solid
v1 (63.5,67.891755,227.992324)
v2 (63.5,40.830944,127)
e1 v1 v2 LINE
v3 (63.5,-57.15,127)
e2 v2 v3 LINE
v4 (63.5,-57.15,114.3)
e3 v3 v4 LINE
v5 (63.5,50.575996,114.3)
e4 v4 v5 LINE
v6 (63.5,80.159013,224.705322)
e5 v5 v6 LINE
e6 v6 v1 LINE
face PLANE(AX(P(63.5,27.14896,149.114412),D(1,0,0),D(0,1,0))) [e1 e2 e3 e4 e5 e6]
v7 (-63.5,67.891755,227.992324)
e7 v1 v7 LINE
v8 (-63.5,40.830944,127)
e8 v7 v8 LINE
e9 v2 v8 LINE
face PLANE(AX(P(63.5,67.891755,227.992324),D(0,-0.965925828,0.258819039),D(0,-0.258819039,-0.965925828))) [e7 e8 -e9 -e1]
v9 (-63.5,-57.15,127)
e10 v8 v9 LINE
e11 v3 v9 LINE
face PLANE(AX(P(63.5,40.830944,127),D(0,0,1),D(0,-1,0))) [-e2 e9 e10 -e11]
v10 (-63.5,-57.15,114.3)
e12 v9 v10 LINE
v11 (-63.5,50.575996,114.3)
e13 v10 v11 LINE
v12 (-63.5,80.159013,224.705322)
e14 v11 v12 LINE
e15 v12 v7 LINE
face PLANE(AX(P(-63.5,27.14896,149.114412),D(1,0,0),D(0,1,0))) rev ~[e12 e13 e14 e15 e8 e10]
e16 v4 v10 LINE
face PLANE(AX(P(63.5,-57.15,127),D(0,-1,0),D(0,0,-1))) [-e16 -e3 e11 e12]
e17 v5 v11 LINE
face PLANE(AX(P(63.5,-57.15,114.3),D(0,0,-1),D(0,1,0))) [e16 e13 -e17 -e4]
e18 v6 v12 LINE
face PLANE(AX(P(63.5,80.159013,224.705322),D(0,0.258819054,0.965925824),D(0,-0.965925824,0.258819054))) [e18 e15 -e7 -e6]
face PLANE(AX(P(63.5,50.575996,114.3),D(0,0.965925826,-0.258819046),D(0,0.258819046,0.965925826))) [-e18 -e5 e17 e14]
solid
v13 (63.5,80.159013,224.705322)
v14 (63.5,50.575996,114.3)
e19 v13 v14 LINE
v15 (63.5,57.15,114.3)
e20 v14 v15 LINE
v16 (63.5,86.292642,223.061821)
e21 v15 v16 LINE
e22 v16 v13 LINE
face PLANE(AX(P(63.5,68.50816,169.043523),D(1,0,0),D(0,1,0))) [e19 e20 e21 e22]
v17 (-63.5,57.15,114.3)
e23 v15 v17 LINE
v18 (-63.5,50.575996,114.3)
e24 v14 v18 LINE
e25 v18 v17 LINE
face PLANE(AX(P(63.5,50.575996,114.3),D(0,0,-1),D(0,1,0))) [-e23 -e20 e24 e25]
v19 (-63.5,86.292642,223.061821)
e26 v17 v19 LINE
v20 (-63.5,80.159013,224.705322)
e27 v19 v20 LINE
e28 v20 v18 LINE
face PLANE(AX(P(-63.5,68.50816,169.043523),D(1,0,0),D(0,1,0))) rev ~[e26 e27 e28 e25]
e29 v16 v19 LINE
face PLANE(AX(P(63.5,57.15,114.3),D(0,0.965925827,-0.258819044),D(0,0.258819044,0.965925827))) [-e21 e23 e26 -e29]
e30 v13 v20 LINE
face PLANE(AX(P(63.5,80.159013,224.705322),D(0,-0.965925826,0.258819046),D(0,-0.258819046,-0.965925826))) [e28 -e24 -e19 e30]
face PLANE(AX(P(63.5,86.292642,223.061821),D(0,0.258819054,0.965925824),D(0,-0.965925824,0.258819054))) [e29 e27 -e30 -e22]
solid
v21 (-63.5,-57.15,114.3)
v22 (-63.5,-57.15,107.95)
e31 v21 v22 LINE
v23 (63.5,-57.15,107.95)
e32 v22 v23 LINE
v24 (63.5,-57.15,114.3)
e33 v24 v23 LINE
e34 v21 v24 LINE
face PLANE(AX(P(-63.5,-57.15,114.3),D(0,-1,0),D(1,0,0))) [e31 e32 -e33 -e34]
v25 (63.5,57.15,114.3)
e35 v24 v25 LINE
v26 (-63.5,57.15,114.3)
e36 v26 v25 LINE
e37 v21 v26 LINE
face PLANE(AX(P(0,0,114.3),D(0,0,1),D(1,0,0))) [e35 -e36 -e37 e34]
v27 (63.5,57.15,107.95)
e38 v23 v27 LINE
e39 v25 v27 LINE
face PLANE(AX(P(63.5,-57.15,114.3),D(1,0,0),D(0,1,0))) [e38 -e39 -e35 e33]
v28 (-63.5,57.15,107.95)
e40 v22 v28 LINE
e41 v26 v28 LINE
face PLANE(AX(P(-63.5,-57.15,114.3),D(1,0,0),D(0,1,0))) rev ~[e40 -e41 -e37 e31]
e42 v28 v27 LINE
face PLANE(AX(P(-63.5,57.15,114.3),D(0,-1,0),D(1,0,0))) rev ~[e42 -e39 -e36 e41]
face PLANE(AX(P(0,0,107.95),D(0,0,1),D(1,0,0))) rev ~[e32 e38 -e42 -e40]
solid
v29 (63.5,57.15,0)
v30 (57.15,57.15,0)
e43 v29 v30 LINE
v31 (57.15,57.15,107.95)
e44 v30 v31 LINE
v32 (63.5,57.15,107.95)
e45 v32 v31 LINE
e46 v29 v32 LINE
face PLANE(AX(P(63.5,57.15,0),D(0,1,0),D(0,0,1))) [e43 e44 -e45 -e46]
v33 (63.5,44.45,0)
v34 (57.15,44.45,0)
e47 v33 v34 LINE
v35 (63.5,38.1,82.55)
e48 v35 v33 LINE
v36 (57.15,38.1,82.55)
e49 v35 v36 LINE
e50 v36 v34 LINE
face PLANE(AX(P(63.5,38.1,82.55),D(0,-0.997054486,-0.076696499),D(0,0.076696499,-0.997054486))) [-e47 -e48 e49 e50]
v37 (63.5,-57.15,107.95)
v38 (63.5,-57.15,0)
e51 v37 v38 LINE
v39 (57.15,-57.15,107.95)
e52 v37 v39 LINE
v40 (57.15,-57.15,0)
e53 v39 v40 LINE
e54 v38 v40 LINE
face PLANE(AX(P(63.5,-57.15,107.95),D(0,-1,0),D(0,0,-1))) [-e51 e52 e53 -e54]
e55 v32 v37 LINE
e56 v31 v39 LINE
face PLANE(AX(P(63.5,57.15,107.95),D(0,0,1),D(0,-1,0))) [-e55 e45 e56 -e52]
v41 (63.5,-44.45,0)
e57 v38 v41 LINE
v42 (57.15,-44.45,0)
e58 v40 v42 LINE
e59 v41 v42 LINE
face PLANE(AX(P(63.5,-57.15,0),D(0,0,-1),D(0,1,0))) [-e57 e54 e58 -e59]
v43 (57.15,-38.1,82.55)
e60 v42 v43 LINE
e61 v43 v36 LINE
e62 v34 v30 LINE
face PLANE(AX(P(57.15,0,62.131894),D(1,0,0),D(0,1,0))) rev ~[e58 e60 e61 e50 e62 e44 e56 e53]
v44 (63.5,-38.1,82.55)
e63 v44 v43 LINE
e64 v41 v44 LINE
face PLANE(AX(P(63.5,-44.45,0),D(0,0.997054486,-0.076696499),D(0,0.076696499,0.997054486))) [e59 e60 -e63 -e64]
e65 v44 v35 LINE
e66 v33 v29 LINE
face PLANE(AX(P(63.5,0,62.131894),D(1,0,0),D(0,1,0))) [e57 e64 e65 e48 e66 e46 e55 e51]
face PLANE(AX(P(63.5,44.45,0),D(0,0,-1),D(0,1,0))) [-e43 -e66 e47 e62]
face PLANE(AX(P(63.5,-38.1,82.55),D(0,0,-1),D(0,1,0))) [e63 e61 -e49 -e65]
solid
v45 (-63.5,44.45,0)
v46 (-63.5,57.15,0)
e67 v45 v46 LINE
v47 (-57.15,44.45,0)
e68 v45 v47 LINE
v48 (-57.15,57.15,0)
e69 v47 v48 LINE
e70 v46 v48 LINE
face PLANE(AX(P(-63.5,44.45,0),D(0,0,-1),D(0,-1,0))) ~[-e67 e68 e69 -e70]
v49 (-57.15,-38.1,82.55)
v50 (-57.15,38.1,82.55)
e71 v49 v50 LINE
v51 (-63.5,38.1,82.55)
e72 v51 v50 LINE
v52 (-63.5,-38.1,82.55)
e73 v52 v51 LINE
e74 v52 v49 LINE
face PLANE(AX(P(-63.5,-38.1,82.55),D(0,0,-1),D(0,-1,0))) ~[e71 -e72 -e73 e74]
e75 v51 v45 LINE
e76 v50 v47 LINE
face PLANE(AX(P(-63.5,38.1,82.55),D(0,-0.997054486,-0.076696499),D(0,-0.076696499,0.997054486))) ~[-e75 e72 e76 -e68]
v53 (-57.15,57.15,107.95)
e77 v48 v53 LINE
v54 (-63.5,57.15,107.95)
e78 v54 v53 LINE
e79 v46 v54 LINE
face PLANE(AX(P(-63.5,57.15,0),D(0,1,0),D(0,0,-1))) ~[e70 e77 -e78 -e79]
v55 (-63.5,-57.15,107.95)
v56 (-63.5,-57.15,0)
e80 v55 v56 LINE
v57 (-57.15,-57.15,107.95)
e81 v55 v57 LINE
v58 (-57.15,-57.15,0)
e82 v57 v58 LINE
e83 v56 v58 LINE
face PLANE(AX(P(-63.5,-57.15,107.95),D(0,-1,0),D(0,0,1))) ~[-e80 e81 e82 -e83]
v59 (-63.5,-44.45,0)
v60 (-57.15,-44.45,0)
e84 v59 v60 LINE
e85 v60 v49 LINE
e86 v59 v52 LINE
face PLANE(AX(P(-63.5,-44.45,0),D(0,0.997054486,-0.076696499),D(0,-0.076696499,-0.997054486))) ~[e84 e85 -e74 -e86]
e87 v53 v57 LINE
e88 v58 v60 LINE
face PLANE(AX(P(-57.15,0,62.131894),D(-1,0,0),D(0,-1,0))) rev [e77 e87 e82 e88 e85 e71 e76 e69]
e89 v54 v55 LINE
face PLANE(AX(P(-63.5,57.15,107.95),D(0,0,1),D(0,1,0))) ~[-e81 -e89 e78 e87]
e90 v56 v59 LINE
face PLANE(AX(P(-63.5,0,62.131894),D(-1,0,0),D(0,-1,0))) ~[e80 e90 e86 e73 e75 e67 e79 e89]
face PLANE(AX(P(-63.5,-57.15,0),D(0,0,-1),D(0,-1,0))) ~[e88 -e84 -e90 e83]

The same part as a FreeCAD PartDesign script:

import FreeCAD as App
import Part
import Sketcher
Q = App.Units.Quantity

doc = App.newDocument("Part")
body = doc.addObject("PartDesign::Body", "Body")

# Sketch on XY plane
sketch1 = body.newObject("Sketcher::SketchObject", "Sketch")
sketch1.AttachmentSupport = (doc.getObject("XY_Plane"), [""])
sketch1.MapMode = "FlatFace"
sketch1.AttachmentOffset = App.Placement(App.Vector(0, 0, 4.5 * 25.4), App.Rotation())
sketch1.addGeometry(Part.LineSegment(App.Vector(-64, 57, 0), App.Vector(-64, -57, 0)), False)
sketch1.addGeometry(Part.LineSegment(App.Vector(-64, -57, 0), App.Vector(64, -57, 0)), False)
sketch1.addGeometry(Part.LineSegment(App.Vector(64, -57, 0), App.Vector(64, 57, 0)), False)
sketch1.addGeometry(Part.LineSegment(App.Vector(64, 57, 0), App.Vector(-64, 57, 0)), False)
sketch1.addConstraint(Sketcher.Constraint("Coincident", 0, 2, 1, 1))
sketch1.addConstraint(Sketcher.Constraint("Coincident", 1, 2, 2, 1))
sketch1.addConstraint(Sketcher.Constraint("Coincident", 2, 2, 3, 1))
sketch1.addConstraint(Sketcher.Constraint("Coincident", 3, 2, 0, 1))
sketch1.addConstraint(Sketcher.Constraint("Vertical", 0))
sketch1.addConstraint(Sketcher.Constraint("Horizontal", 1))
sketch1.addConstraint(Sketcher.Constraint("Vertical", 2))
sketch1.addConstraint(Sketcher.Constraint("Horizontal", 3))
sketch1.addConstraint(Sketcher.Constraint("Symmetric", 0, 2, 2, 2, -1, 1))
sketch1.addConstraint(Sketcher.Constraint("DistanceX", 1, 1, 1, 2, Q("5 in")))
sketch1.addConstraint(Sketcher.Constraint("DistanceY", 0, 2, 0, 1, Q("4.5 in")))
pad1 = body.newObject("PartDesign::Pad", "Pad")
pad1.Profile = sketch1
pad1.Length = Q("0.25 in")
pad1.Reversed = True
body2 = doc.addObject("PartDesign::Body", "Body001")

# Sketch on YZ plane
sketch2 = body2.newObject("Sketcher::SketchObject", "Sketch001")
sketch2.AttachmentSupport = (doc.getObject("YZ_Plane001"), [""])
sketch2.MapMode = "FlatFace"
sketch2.AttachmentOffset = App.Placement(App.Vector(0, 0, 2.5 * 25.4), App.Rotation())
sketch2.addGeometry(Part.LineSegment(App.Vector(51, 114, 0), App.Vector(57, 114, 0)), False)
sketch2.addGeometry(Part.LineSegment(App.Vector(57, 114, 0), App.Vector(86, 223, 0)), False)
sketch2.addGeometry(Part.LineSegment(App.Vector(86, 223, 0), App.Vector(80, 225, 0)), False)
sketch2.addGeometry(Part.LineSegment(App.Vector(80, 225, 0), App.Vector(51, 114, 0)), False)
sketch2.addConstraint(Sketcher.Constraint("Coincident", 0, 2, 1, 1))
sketch2.addConstraint(Sketcher.Constraint("Coincident", 1, 2, 2, 1))
sketch2.addConstraint(Sketcher.Constraint("Coincident", 2, 2, 3, 1))
sketch2.addConstraint(Sketcher.Constraint("Coincident", 3, 2, 0, 1))
sketch2.addConstraint(Sketcher.Constraint("Horizontal", 0))
sketch2.addConstraint(Sketcher.Constraint("Perpendicular", 1, 2))
sketch2.addConstraint(Sketcher.Constraint("Perpendicular", 2, 3))
sketch2.addConstraint(Sketcher.Constraint("Angle", 1, Q("75 deg")))
sketch2.addConstraint(Sketcher.Constraint("Distance", 3, Q("4.5 in")))
sketch2.addConstraint(Sketcher.Constraint("DistanceY", -1, 1, 0, 2, Q("4.5 in")))
sketch2.addConstraint(Sketcher.Constraint("Distance", 2, Q("0.25 in")))
sketch2.addConstraint(Sketcher.Constraint("DistanceX", -1, 1, 0, 2, Q("2.25 in")))
pad2 = body2.newObject("PartDesign::Pad", "Pad001")
pad2.Profile = sketch2
pad2.Length = Q("5 in")
pad2.Reversed = True
body3 = doc.addObject("PartDesign::Body", "Body002")

# Sketch on YZ plane
sketch3 = body3.newObject("Sketcher::SketchObject", "Sketch002")
sketch3.AttachmentSupport = (doc.getObject("YZ_Plane002"), [""])
sketch3.MapMode = "FlatFace"
sketch3.AttachmentOffset = App.Placement(App.Vector(0, 0, 2.5 * 25.4), App.Rotation())
sketch3.addGeometry(Part.LineSegment(App.Vector(51, 114, 0), App.Vector(80, 225, 0)), False)
sketch3.addGeometry(Part.LineSegment(App.Vector(80, 225, 0), App.Vector(68, 228, 0)), False)
sketch3.addGeometry(Part.LineSegment(App.Vector(68, 228, 0), App.Vector(41, 127, 0)), False)
sketch3.addGeometry(Part.LineSegment(App.Vector(41, 127, 0), App.Vector(-57, 127, 0)), False)
sketch3.addGeometry(Part.LineSegment(App.Vector(-57, 127, 0), App.Vector(-57, 114, 0)), False)
sketch3.addGeometry(Part.LineSegment(App.Vector(-57, 114, 0), App.Vector(51, 114, 0)), False)
sketch3.addConstraint(Sketcher.Constraint("Coincident", 0, 2, 1, 1))
sketch3.addConstraint(Sketcher.Constraint("Coincident", 1, 2, 2, 1))
sketch3.addConstraint(Sketcher.Constraint("Coincident", 2, 2, 3, 1))
sketch3.addConstraint(Sketcher.Constraint("Coincident", 3, 2, 4, 1))
sketch3.addConstraint(Sketcher.Constraint("Coincident", 4, 2, 5, 1))
sketch3.addConstraint(Sketcher.Constraint("Coincident", 5, 2, 0, 1))
sketch3.addConstraint(Sketcher.Constraint("Horizontal", 3))
sketch3.addConstraint(Sketcher.Constraint("Vertical", 4))
sketch3.addConstraint(Sketcher.Constraint("Horizontal", 5))
sketch3.addConstraint(Sketcher.Constraint("Perpendicular", 0, 1))
sketch3.addConstraint(Sketcher.Constraint("Perpendicular", 1, 2))
sketch3.addConstraint(Sketcher.Constraint("DistanceY", 4, 2, 4, 1, Q("0.5 in")))
sketch3.addConstraint(Sketcher.Constraint("DistanceY", -1, 1, 2, 2, Q("5 in")))
sketch3.addConstraint(Sketcher.Constraint("Angle", 0, Q("75 deg")))
sketch3.addConstraint(Sketcher.Constraint("Distance", 0, Q("4.5 in")))
sketch3.addConstraint(Sketcher.Constraint("Distance", 1, Q("0.5 in")))
sketch3.addConstraint(Sketcher.Constraint("DistanceX", 3, 2, -1, 1, Q("2.25 in")))
sketch3.addConstraint(Sketcher.Constraint("DistanceX", 3, 2, 3, 1, 97.980944))
pad3 = body3.newObject("PartDesign::Pad", "Pad002")
pad3.Profile = sketch3
pad3.Length = Q("5 in")
pad3.Reversed = True
body4 = doc.addObject("PartDesign::Body", "Body003")

# Sketch on YZ plane
sketch4 = body4.newObject("Sketcher::SketchObject", "Sketch003")
sketch4.AttachmentSupport = (doc.getObject("YZ_Plane003"), [""])
sketch4.MapMode = "FlatFace"
sketch4.AttachmentOffset = App.Placement(App.Vector(0, 0, 2.5 * 25.4), App.Rotation())
sketch4.addGeometry(Part.LineSegment(App.Vector(57, 108, 0), App.Vector(-57, 108, 0)), False)
sketch4.addGeometry(Part.LineSegment(App.Vector(-57, 108, 0), App.Vector(-57, 0, 0)), False)
sketch4.addGeometry(Part.LineSegment(App.Vector(-57, 0, 0), App.Vector(-44, 0, 0)), False)
sketch4.addGeometry(Part.LineSegment(App.Vector(-44, 0, 0), App.Vector(-38, 83, 0)), False)
sketch4.addGeometry(Part.LineSegment(App.Vector(-38, 83, 0), App.Vector(38, 83, 0)), False)
sketch4.addGeometry(Part.LineSegment(App.Vector(38, 83, 0), App.Vector(44, 0, 0)), False)
sketch4.addGeometry(Part.LineSegment(App.Vector(44, 0, 0), App.Vector(57, 0, 0)), False)
sketch4.addGeometry(Part.LineSegment(App.Vector(57, 0, 0), App.Vector(57, 108, 0)), False)
sketch4.addConstraint(Sketcher.Constraint("Coincident", 0, 2, 1, 1))
sketch4.addConstraint(Sketcher.Constraint("Coincident", 1, 2, 2, 1))
sketch4.addConstraint(Sketcher.Constraint("Coincident", 2, 2, 3, 1))
sketch4.addConstraint(Sketcher.Constraint("Coincident", 3, 2, 4, 1))
sketch4.addConstraint(Sketcher.Constraint("Coincident", 4, 2, 5, 1))
sketch4.addConstraint(Sketcher.Constraint("Coincident", 5, 2, 6, 1))
sketch4.addConstraint(Sketcher.Constraint("Coincident", 6, 2, 7, 1))
sketch4.addConstraint(Sketcher.Constraint("Coincident", 7, 2, 0, 1))
sketch4.addConstraint(Sketcher.Constraint("Horizontal", 0))
sketch4.addConstraint(Sketcher.Constraint("Vertical", 1))
sketch4.addConstraint(Sketcher.Constraint("Horizontal", 2))
sketch4.addConstraint(Sketcher.Constraint("Horizontal", 4))
sketch4.addConstraint(Sketcher.Constraint("Horizontal", 6))
sketch4.addConstraint(Sketcher.Constraint("Vertical", 7))
sketch4.addConstraint(Sketcher.Constraint("Symmetric", 2, 2, 5, 2, -1, 1))
sketch4.addConstraint(Sketcher.Constraint("Symmetric", 1, 2, 6, 2, -2))
sketch4.addConstraint(Sketcher.Constraint("Equal", 3, 5))
sketch4.addConstraint(Sketcher.Constraint("DistanceX", 4, 1, 4, 2, Q("3 in")))
sketch4.addConstraint(Sketcher.Constraint("DistanceX", 0, 2, 0, 1, Q("4.5 in")))
sketch4.addConstraint(Sketcher.Constraint("DistanceX", 2, 1, 2, 2, Q("0.5 in")))
sketch4.addConstraint(Sketcher.Constraint("DistanceY", 3, 2, 0, 2, Q("1 in")))
sketch4.addConstraint(Sketcher.Constraint("DistanceY", 1, 2, 1, 1, Q("4.25 in")))
pad4 = body4.newObject("PartDesign::Pad", "Pad003")
pad4.Profile = sketch4
pad4.Length = Q("0.25 in")
pad4.Reversed = True
body5 = doc.addObject("PartDesign::Body", "Body004")
doc.recompute()

mirroring = doc.addObject("Part::Mirroring", "Mirroring")
mirroring.Source = body4
mirroring.Base = App.Vector(0, 0, 0)
mirroring.Normal = App.Vector(1, 0, 0)
body5.BaseFeature = mirroring
doc.recompute()
mirroring.Visibility = False

doc.recompute()
